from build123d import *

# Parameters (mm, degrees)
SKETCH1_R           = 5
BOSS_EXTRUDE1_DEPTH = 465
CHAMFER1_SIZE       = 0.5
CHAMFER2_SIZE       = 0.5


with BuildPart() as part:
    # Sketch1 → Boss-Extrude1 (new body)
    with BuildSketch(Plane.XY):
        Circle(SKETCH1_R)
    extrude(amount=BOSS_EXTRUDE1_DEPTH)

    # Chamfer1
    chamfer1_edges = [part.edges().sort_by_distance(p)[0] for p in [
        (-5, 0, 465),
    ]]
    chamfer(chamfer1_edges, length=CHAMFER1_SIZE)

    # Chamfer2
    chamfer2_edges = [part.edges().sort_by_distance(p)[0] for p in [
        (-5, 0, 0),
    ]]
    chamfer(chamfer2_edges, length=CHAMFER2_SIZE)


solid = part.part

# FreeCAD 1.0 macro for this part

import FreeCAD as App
import Part
import Sketcher
from FreeCAD import Vector
Q = App.Units.Quantity


def edges_at(feature, points):
    """Names of the edges that pass closest to the given points."""
    edges = feature.Shape.Edges
    near = lambda p: min(range(len(edges)), key=lambda i: edges[i].distToShape(Part.Vertex(*p))[0])
    return sorted({f"Edge{near(p) + 1}" for p in points})

doc = App.newDocument("Part")
body = doc.addObject("PartDesign::Body", "Body")

sketch1 = body.newObject("Sketcher::SketchObject", "Sketch")
sketch1.AttachmentSupport = (doc.getObject("XY_Plane"), [""])
sketch1.MapMode = "FlatFace"
sketch1.addGeometry(Part.Circle(Vector(0, 0, 0), Vector(0, 0, 1), 5), False)
sketch1.addConstraint([
    Sketcher.Constraint("Coincident", 0, 3, -1, 1),
    Sketcher.Constraint("Diameter", 0, Q("10 mm")),
])
pad1 = body.newObject("PartDesign::Pad", "Pad")
pad1.Profile = sketch1
pad1.Length = 465
doc.recompute()

chamfer = body.newObject("PartDesign::Chamfer", "Chamfer")
chamfer.Base = (pad1, edges_at(pad1, [(-5, 0, 465)]))
chamfer.Size = 0.5
doc.recompute()

chamfer2 = body.newObject("PartDesign::Chamfer", "Chamfer001")
chamfer2.Base = (chamfer, edges_at(chamfer, [(-5, 0, 0)]))
chamfer2.Size = 0.5

doc.recompute()
